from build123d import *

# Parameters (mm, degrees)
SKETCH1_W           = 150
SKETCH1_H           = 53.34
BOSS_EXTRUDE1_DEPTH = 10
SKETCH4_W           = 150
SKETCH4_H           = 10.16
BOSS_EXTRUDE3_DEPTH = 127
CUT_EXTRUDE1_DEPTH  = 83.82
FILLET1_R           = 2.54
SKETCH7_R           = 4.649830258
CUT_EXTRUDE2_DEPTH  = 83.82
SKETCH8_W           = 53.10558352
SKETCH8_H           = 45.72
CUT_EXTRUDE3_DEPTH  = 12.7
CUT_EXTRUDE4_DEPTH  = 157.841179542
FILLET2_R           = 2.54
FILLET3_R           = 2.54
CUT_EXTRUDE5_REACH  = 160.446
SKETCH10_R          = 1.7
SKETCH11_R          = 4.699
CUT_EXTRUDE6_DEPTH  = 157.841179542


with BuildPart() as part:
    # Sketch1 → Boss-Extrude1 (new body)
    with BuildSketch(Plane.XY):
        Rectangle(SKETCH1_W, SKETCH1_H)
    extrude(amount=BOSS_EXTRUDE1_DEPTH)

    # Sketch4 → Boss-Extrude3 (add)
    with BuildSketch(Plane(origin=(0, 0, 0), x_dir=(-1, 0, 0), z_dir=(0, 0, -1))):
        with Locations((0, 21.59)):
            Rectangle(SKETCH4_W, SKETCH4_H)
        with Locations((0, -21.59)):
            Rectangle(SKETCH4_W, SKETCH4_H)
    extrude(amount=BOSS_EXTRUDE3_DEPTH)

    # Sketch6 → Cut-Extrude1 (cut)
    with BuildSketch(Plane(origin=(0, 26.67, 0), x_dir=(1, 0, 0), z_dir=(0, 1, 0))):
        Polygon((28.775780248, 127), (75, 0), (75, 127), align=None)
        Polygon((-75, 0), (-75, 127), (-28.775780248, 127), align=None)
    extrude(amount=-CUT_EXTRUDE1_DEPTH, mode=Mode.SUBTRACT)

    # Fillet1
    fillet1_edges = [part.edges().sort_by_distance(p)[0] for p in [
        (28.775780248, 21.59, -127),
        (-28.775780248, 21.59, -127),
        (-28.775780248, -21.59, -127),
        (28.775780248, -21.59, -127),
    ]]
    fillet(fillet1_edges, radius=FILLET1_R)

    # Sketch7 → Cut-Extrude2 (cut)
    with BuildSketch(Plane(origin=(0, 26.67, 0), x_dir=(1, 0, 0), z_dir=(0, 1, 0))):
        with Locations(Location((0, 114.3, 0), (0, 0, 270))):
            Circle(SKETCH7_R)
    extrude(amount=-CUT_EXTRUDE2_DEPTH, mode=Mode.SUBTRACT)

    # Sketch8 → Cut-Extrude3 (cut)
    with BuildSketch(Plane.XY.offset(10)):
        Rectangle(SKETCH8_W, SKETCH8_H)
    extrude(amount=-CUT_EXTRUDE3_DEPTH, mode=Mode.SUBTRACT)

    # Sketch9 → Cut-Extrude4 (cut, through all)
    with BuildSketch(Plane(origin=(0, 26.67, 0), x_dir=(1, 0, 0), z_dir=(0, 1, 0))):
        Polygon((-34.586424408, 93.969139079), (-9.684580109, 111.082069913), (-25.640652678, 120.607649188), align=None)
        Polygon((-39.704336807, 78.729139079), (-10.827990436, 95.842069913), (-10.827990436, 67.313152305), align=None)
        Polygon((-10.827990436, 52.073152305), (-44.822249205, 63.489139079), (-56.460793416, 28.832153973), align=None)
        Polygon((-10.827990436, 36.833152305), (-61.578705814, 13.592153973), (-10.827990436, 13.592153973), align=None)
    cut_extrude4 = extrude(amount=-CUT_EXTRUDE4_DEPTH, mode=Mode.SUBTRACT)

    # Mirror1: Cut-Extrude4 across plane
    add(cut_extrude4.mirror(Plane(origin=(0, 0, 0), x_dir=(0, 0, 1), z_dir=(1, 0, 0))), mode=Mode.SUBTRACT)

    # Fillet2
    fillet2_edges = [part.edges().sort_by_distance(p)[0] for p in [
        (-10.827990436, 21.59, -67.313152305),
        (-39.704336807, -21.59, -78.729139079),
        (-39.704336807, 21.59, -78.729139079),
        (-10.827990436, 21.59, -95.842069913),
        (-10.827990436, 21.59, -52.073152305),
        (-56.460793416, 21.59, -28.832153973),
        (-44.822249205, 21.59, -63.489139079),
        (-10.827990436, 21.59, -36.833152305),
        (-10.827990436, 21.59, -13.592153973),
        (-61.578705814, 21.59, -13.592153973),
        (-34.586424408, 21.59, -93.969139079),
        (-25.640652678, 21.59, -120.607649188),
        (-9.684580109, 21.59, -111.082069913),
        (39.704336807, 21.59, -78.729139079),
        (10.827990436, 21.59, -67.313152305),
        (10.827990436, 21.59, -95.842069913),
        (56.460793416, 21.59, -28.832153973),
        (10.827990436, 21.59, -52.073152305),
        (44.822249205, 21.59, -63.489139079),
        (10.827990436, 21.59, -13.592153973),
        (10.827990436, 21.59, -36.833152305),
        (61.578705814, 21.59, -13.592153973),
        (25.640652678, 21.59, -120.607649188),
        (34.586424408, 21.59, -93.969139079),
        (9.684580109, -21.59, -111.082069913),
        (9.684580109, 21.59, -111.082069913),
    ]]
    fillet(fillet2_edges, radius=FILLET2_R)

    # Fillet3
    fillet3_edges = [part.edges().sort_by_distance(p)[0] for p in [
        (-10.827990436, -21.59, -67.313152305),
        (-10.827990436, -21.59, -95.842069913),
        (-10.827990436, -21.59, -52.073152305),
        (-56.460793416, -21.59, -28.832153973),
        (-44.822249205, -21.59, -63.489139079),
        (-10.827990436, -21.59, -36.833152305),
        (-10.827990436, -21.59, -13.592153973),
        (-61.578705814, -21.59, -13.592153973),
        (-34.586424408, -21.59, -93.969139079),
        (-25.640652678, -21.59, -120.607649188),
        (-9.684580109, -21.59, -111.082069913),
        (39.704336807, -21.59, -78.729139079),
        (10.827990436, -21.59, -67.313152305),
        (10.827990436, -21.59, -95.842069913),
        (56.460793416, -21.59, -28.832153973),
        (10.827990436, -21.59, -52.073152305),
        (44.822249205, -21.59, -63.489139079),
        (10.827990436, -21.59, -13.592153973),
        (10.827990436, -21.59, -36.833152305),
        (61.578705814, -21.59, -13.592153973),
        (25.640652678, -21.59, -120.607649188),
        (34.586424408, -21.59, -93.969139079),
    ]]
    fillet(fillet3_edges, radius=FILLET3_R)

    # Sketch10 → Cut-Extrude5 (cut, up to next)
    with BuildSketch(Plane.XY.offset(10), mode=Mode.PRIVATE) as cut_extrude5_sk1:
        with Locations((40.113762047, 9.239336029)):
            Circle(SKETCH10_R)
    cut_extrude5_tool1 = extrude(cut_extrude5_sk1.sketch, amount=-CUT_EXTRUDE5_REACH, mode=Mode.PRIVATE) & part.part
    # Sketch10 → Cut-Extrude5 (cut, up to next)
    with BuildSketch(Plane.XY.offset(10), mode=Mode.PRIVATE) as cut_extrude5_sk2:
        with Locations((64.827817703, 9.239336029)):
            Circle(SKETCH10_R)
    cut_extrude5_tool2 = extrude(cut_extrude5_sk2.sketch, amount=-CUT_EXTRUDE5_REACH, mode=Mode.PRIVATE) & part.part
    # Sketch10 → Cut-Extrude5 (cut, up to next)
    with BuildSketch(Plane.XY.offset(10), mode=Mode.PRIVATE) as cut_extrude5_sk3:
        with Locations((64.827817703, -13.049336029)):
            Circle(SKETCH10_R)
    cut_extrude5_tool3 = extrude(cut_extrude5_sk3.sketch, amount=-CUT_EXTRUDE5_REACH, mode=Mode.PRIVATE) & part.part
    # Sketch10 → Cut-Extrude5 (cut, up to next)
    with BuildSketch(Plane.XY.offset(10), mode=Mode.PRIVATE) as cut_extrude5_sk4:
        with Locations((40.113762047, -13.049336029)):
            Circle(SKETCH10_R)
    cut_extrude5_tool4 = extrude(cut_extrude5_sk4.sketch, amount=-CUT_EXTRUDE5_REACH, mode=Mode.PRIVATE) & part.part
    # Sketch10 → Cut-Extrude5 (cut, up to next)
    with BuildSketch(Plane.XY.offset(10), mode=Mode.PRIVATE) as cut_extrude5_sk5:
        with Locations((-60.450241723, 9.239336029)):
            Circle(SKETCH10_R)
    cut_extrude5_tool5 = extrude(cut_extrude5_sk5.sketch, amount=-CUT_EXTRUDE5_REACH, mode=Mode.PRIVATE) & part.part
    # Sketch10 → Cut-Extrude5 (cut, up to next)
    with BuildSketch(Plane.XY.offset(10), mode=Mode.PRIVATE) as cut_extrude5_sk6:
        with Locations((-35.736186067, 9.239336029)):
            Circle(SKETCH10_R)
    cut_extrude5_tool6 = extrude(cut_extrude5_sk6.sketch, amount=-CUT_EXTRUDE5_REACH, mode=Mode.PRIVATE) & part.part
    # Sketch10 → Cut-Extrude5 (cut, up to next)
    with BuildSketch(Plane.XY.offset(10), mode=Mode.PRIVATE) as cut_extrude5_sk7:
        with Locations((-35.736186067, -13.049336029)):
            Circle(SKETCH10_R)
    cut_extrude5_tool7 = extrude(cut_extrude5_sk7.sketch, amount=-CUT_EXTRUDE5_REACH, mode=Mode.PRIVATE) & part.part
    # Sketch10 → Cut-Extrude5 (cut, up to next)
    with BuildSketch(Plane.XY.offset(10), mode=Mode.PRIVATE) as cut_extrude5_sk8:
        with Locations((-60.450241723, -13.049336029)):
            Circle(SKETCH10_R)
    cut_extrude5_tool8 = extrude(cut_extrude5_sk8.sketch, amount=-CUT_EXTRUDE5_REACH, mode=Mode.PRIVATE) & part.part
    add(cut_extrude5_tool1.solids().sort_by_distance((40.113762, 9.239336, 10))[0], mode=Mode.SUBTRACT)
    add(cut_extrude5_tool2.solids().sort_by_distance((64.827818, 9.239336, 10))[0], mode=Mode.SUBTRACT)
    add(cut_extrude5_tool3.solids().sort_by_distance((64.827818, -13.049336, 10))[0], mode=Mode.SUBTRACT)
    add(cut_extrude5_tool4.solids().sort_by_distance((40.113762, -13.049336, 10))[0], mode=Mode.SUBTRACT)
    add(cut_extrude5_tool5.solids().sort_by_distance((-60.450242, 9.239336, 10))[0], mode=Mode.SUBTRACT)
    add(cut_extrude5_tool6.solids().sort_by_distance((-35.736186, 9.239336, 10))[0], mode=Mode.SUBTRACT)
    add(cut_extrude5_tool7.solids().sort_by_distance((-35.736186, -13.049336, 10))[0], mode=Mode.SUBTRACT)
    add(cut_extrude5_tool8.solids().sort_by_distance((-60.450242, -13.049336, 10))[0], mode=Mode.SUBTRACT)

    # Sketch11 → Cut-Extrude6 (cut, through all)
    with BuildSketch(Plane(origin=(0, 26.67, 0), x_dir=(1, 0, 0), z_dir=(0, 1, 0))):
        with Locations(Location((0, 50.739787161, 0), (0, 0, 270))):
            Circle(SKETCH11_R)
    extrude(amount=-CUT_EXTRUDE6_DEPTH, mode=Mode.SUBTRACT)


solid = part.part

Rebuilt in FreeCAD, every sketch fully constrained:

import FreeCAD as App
import Part
import Sketcher
Q = App.Units.Quantity


def edges_at(feature, points):
    """Names of the edges that pass closest to the given points."""
    edges = feature.Shape.Edges
    near = lambda p: min(range(len(edges)), key=lambda i: edges[i].distToShape(Part.Vertex(*p))[0])
    return sorted({f"Edge{near(p) + 1}" for p in points})

doc = App.newDocument("Part")
body = doc.addObject("PartDesign::Body", "Body")

sketch1 = doc.addObject("Sketcher::SketchObject", "Sketch")
body.addObject(sketch1)
sketch1.AttachmentSupport = (doc.XY_Plane, [""])
sketch1.MapMode = "FlatFace"
sketch1.addGeometry(Part.LineSegment(App.Vector(-75, 26.67, 0), App.Vector(-75, -26.67, 0)), False)
sketch1.addGeometry(Part.LineSegment(App.Vector(-75, -26.67, 0), App.Vector(75, -26.67, 0)), False)
sketch1.addGeometry(Part.LineSegment(App.Vector(75, -26.67, 0), App.Vector(75, 26.67, 0)), False)
sketch1.addGeometry(Part.LineSegment(App.Vector(75, 26.67, 0), App.Vector(-75, 26.67, 0)), False)
sketch1.addConstraint(Sketcher.Constraint("Coincident", 0, 2, 1, 1))
sketch1.addConstraint(Sketcher.Constraint("Coincident", 1, 2, 2, 1))
sketch1.addConstraint(Sketcher.Constraint("Coincident", 2, 2, 3, 1))
sketch1.addConstraint(Sketcher.Constraint("Coincident", 3, 2, 0, 1))
sketch1.addConstraint(Sketcher.Constraint("Vertical", 0))
sketch1.addConstraint(Sketcher.Constraint("Horizontal", 1))
sketch1.addConstraint(Sketcher.Constraint("Vertical", 2))
sketch1.addConstraint(Sketcher.Constraint("Horizontal", 3))
sketch1.addConstraint(Sketcher.Constraint("Symmetric", 0, 2, 2, 2, -1, 1))
sketch1.addConstraint(Sketcher.Constraint("DistanceY", 0, 2, 0, 1, Q("2.1 in")))
sketch1.addConstraint(Sketcher.Constraint("DistanceX", 1, 1, 1, 2, Q("150 mm")))
pad1 = doc.addObject("PartDesign::Pad", "Pad")
body.addObject(pad1)
pad1.Profile = sketch1
pad1.Length = 10

sketch2 = doc.addObject("Sketcher::SketchObject", "Sketch001")
body.addObject(sketch2)
sketch2.AttachmentSupport = (doc.XY_Plane, [""])
sketch2.MapMode = "FlatFace"
sketch2.addGeometry(Part.LineSegment(App.Vector(75, 26.67, 0), App.Vector(75, 16.51, 0)), False)
sketch2.addGeometry(Part.LineSegment(App.Vector(75, 16.51, 0), App.Vector(-75, 16.51, 0)), False)
sketch2.addGeometry(Part.LineSegment(App.Vector(-75, 16.51, 0), App.Vector(-75, 26.67, 0)), False)
sketch2.addGeometry(Part.LineSegment(App.Vector(-75, 26.67, 0), App.Vector(75, 26.67, 0)), False)
sketch2.addGeometry(Part.LineSegment(App.Vector(75, -16.51, 0), App.Vector(75, -26.67, 0)), False)
sketch2.addGeometry(Part.LineSegment(App.Vector(75, -26.67, 0), App.Vector(-75, -26.67, 0)), False)
sketch2.addGeometry(Part.LineSegment(App.Vector(-75, -26.67, 0), App.Vector(-75, -16.51, 0)), False)
sketch2.addGeometry(Part.LineSegment(App.Vector(-75, -16.51, 0), App.Vector(75, -16.51, 0)), False)
sketch2.addConstraint(Sketcher.Constraint("Coincident", 0, 2, 1, 1))
sketch2.addConstraint(Sketcher.Constraint("Coincident", 1, 2, 2, 1))
sketch2.addConstraint(Sketcher.Constraint("Coincident", 2, 2, 3, 1))
sketch2.addConstraint(Sketcher.Constraint("Coincident", 3, 2, 0, 1))
sketch2.addConstraint(Sketcher.Constraint("Coincident", 4, 2, 5, 1))
sketch2.addConstraint(Sketcher.Constraint("Coincident", 5, 2, 6, 1))
sketch2.addConstraint(Sketcher.Constraint("Coincident", 6, 2, 7, 1))
sketch2.addConstraint(Sketcher.Constraint("Coincident", 7, 2, 4, 1))
sketch2.addConstraint(Sketcher.Constraint("Vertical", 0))
sketch2.addConstraint(Sketcher.Constraint("Horizontal", 1))
sketch2.addConstraint(Sketcher.Constraint("Vertical", 2))
sketch2.addConstraint(Sketcher.Constraint("Horizontal", 3))
sketch2.addConstraint(Sketcher.Constraint("Vertical", 4))
sketch2.addConstraint(Sketcher.Constraint("Horizontal", 5))
sketch2.addConstraint(Sketcher.Constraint("Vertical", 6))
sketch2.addConstraint(Sketcher.Constraint("Horizontal", 7))
sketch2.addConstraint(Sketcher.Constraint("Symmetric", 2, 2, 4, 2, -1, 1))
sketch2.addConstraint(Sketcher.Constraint("Symmetric", 0, 2, 6, 2, -1, 1))
sketch2.addConstraint(Sketcher.Constraint("Vertical", 3, 2, 4, 2))
sketch2.addConstraint(Sketcher.Constraint("DistanceY", 0, 2, 0, 1, Q("0.4 in")))
sketch2.addConstraint(Sketcher.Constraint("DistanceY", 4, 2, 0, 2, Q("1.7 in")))
sketch2.addConstraint(Sketcher.Constraint("DistanceX", 1, 2, 1, 1, Q("150 mm")))
pad2 = doc.addObject("PartDesign::Pad", "Pad001")
body.addObject(pad2)
pad2.Profile = sketch2
pad2.Length = Q("5 in")
pad2.Reversed = True

sketch3 = doc.addObject("Sketcher::SketchObject", "Sketch002")
body.addObject(sketch3)
sketch3.AttachmentSupport = (doc.XZ_Plane, [""])
sketch3.MapMode = "FlatFace"
sketch3.AttachmentOffset = App.Placement(App.Vector(0, 0, -1.05 * 25.4), App.Rotation())
sketch3.addGeometry(Part.LineSegment(App.Vector(28.77578, -127, 0), App.Vector(75, 0, 0)), False)
sketch3.addGeometry(Part.LineSegment(App.Vector(75, 0, 0), App.Vector(75, -127, 0)), False)
sketch3.addGeometry(Part.LineSegment(App.Vector(75, -127, 0), App.Vector(28.77578, -127, 0)), False)
sketch3.addGeometry(Part.LineSegment(App.Vector(-75, -127, 0), App.Vector(-75, 0, 0)), False)
sketch3.addGeometry(Part.LineSegment(App.Vector(-75, 0, 0), App.Vector(-28.77578, -127, 0)), False)
sketch3.addGeometry(Part.LineSegment(App.Vector(-28.77578, -127, 0), App.Vector(-75, -127, 0)), False)
sketch3.addConstraint(Sketcher.Constraint("Coincident", 0, 2, 1, 1))
sketch3.addConstraint(Sketcher.Constraint("Coincident", 1, 2, 2, 1))
sketch3.addConstraint(Sketcher.Constraint("Coincident", 2, 2, 0, 1))
sketch3.addConstraint(Sketcher.Constraint("Coincident", 3, 2, 4, 1))
sketch3.addConstraint(Sketcher.Constraint("Coincident", 4, 2, 5, 1))
sketch3.addConstraint(Sketcher.Constraint("Coincident", 5, 2, 3, 1))
sketch3.addConstraint(Sketcher.Constraint("Vertical", 1))
sketch3.addConstraint(Sketcher.Constraint("Horizontal", 2))
sketch3.addConstraint(Sketcher.Constraint("Vertical", 3))
sketch3.addConstraint(Sketcher.Constraint("Horizontal", 5))
sketch3.addConstraint(Sketcher.Constraint("Symmetric", 0, 2, 3, 2, -1, 1))
sketch3.addConstraint(Sketcher.Constraint("Symmetric", 2, 2, 4, 2, -2))
sketch3.addConstraint(Sketcher.Constraint("PointOnObject", 0, 2, -1))
sketch3.addConstraint(Sketcher.Constraint("DistanceY", 1, 2, 1, 1, Q("5 in")))
sketch3.addConstraint(Sketcher.Constraint("Angle", 0, Q("70 deg")))
sketch3.addConstraint(Sketcher.Constraint("DistanceX", -1, 1, 0, 2, Q("75 mm")))
pocket1 = doc.addObject("PartDesign::Pocket", "Pocket")
body.addObject(pocket1)
pocket1.Profile = sketch3
pocket1.Length = Q("3.3 in")
pocket1.Reversed = True
doc.recompute()

fillet = doc.addObject("PartDesign::Fillet", "Fillet")
body.addObject(fillet)
fillet.Base = (pocket1, edges_at(pocket1, [
    (28.776, 21.59, -127),
    (-28.776, 21.59, -127),
    (-28.776, -21.59, -127),
    (28.776, -21.59, -127),
]))
fillet.Radius = Q("0.1 in")

sketch4 = doc.addObject("Sketcher::SketchObject", "Sketch003")
body.addObject(sketch4)
sketch4.AttachmentSupport = (doc.XZ_Plane, [""])
sketch4.MapMode = "FlatFace"
sketch4.AttachmentOffset = App.Placement(App.Vector(0, 0, -1.05 * 25.4), App.Rotation())
sketch4.addGeometry(Part.Circle(App.Vector(0, -114.3, 0), App.Vector(0, 0, 1), 4.64983), False)
sketch4.addConstraint(Sketcher.Constraint("PointOnObject", 0, 3, -2))
sketch4.addConstraint(Sketcher.Constraint("DistanceY", 0, 3, -1, 1, Q("4.5 in")))
sketch4.addConstraint(Sketcher.Constraint("Diameter", 0, Q("9.299661 mm")))
pocket2 = doc.addObject("PartDesign::Pocket", "Pocket001")
body.addObject(pocket2)
pocket2.Profile = sketch4
pocket2.Length = Q("3.3 in")
pocket2.Reversed = True

sketch5 = doc.addObject("Sketcher::SketchObject", "Sketch004")
body.addObject(sketch5)
sketch5.AttachmentSupport = (doc.XY_Plane, [""])
sketch5.MapMode = "FlatFace"
sketch5.AttachmentOffset = App.Placement(App.Vector(0, 0, 10), App.Rotation())
sketch5.addGeometry(Part.LineSegment(App.Vector(-26.552792, 22.86, 0), App.Vector(-26.552792, -22.86, 0)), False)
sketch5.addGeometry(Part.LineSegment(App.Vector(-26.552792, -22.86, 0), App.Vector(26.552792, -22.86, 0)), False)
sketch5.addGeometry(Part.LineSegment(App.Vector(26.552792, -22.86, 0), App.Vector(26.552792, 22.86, 0)), False)
sketch5.addGeometry(Part.LineSegment(App.Vector(26.552792, 22.86, 0), App.Vector(-26.552792, 22.86, 0)), False)
sketch5.addConstraint(Sketcher.Constraint("Coincident", 0, 2, 1, 1))
sketch5.addConstraint(Sketcher.Constraint("Coincident", 1, 2, 2, 1))
sketch5.addConstraint(Sketcher.Constraint("Coincident", 2, 2, 3, 1))
sketch5.addConstraint(Sketcher.Constraint("Coincident", 3, 2, 0, 1))
sketch5.addConstraint(Sketcher.Constraint("Vertical", 0))
sketch5.addConstraint(Sketcher.Constraint("Horizontal", 1))
sketch5.addConstraint(Sketcher.Constraint("Vertical", 2))
sketch5.addConstraint(Sketcher.Constraint("Horizontal", 3))
sketch5.addConstraint(Sketcher.Constraint("Symmetric", 0, 2, 2, 2, -1, 1))
sketch5.addConstraint(Sketcher.Constraint("DistanceY", 0, 2, 0, 1, Q("1.8 in")))
sketch5.addConstraint(Sketcher.Constraint("DistanceX", 1, 1, 1, 2, Q("53.105584 mm")))
pocket3 = doc.addObject("PartDesign::Pocket", "Pocket002")
body.addObject(pocket3)
pocket3.Profile = sketch5
pocket3.Length = Q("0.5 in")

sketch6 = doc.addObject("Sketcher::SketchObject", "Sketch005")
body.addObject(sketch6)
sketch6.AttachmentSupport = (doc.XZ_Plane, [""])
sketch6.MapMode = "FlatFace"
sketch6.AttachmentOffset = App.Placement(App.Vector(0, 0, -1.05 * 25.4), App.Rotation())
sketch6.addGeometry(Part.LineSegment(App.Vector(-34.586424, -93.969139, 0), App.Vector(-9.68458, -111.08207, 0)), False)
sketch6.addGeometry(Part.LineSegment(App.Vector(-9.68458, -111.08207, 0), App.Vector(-25.640653, -120.607649, 0)), False)
sketch6.addGeometry(Part.LineSegment(App.Vector(-25.640653, -120.607649, 0), App.Vector(-34.586424, -93.969139, 0)), False)
sketch6.addGeometry(Part.LineSegment(App.Vector(-10.82799, -95.84207, 0), App.Vector(-39.704337, -78.729139, 0)), False)
sketch6.addGeometry(Part.LineSegment(App.Vector(-39.704337, -78.729139, 0), App.Vector(-10.82799, -67.313152, 0)), False)
sketch6.addGeometry(Part.LineSegment(App.Vector(-10.82799, -67.313152, 0), App.Vector(-10.82799, -95.84207, 0)), False)
sketch6.addGeometry(Part.LineSegment(App.Vector(-10.82799, -52.073152, 0), App.Vector(-44.822249, -63.489139, 0)), False)
sketch6.addGeometry(Part.LineSegment(App.Vector(-44.822249, -63.489139, 0), App.Vector(-56.460793, -28.832154, 0)), False)
sketch6.addGeometry(Part.LineSegment(App.Vector(-56.460793, -28.832154, 0), App.Vector(-10.82799, -52.073152, 0)), False)
sketch6.addGeometry(Part.LineSegment(App.Vector(-10.82799, -36.833152, 0), App.Vector(-61.578706, -13.592154, 0)), False)
sketch6.addGeometry(Part.LineSegment(App.Vector(-61.578706, -13.592154, 0), App.Vector(-10.82799, -13.592154, 0)), False)
sketch6.addGeometry(Part.LineSegment(App.Vector(-10.82799, -13.592154, 0), App.Vector(-10.82799, -36.833152, 0)), False)
sketch6.addConstraint(Sketcher.Constraint("Coincident", 0, 2, 1, 1))
sketch6.addConstraint(Sketcher.Constraint("Coincident", 1, 2, 2, 1))
sketch6.addConstraint(Sketcher.Constraint("Coincident", 2, 2, 0, 1))
sketch6.addConstraint(Sketcher.Constraint("Coincident", 3, 2, 4, 1))
sketch6.addConstraint(Sketcher.Constraint("Coincident", 4, 2, 5, 1))
sketch6.addConstraint(Sketcher.Constraint("Coincident", 5, 2, 3, 1))
sketch6.addConstraint(Sketcher.Constraint("Coincident", 6, 2, 7, 1))
sketch6.addConstraint(Sketcher.Constraint("Coincident", 7, 2, 8, 1))
sketch6.addConstraint(Sketcher.Constraint("Coincident", 8, 2, 6, 1))
sketch6.addConstraint(Sketcher.Constraint("Coincident", 9, 2, 10, 1))
sketch6.addConstraint(Sketcher.Constraint("Coincident", 10, 2, 11, 1))
sketch6.addConstraint(Sketcher.Constraint("Coincident", 11, 2, 9, 1))
sketch6.addConstraint(Sketcher.Constraint("Vertical", 5))
sketch6.addConstraint(Sketcher.Constraint("Horizontal", 10))
sketch6.addConstraint(Sketcher.Constraint("Vertical", 11))
sketch6.addConstraint(Sketcher.Constraint("Perpendicular", 2, 6))
sketch6.addConstraint(Sketcher.Constraint("Perpendicular", 6, 7))
sketch6.addConstraint(Sketcher.Constraint("Vertical", 5, 2, 8, 2))
sketch6.addConstraint(Sketcher.Constraint("Vertical", 8, 2, 10, 2))
sketch6.addConstraint(Sketcher.Constraint("DistanceY", 2, 2, 3, 2, Q("0.6 in")))
sketch6.addConstraint(Sketcher.Constraint("DistanceY", 0, 2, 5, 2, Q("0.6 in")))
sketch6.addConstraint(Sketcher.Constraint("DistanceY", 3, 2, 6, 2, Q("0.6 in")))
sketch6.addConstraint(Sketcher.Constraint("DistanceY", 4, 2, 8, 2, Q("0.6 in")))
sketch6.addConstraint(Sketcher.Constraint("DistanceY", 7, 2, 9, 2, Q("0.6 in")))
sketch6.addConstraint(Sketcher.Constraint("DistanceY", 8, 2, 11, 2, Q("0.6 in")))
sketch6.addConstraint(Sketcher.Constraint("DistanceY", 11, 2, 11, 1, Q("0.9149999 in")))
sketch6.addConstraint(Sketcher.Constraint("Distance", 2, Q("28.100481 mm")))
sketch6.addConstraint(Sketcher.Constraint("Distance", 3, Q("33.566289 mm")))
sketch6.addConstraint(Sketcher.Constraint("Distance", 8, Q("51.210318 mm")))
sketch6.addConstraint(Sketcher.Constraint("DistanceX", 10, 1, 10, 2, Q("50.750715 mm")))
sketch6.addConstraint(Sketcher.Constraint("DistanceY", 5, 2, 5, 1, Q("28.528918 mm")))
sketch6.addConstraint(Sketcher.Constraint("DistanceX", 0, 2, -1, 1, Q("9.68458 mm")))
sketch6.addConstraint(Sketcher.Constraint("DistanceY", 0, 2, -1, 1, Q("111.08207 mm")))
sketch6.addConstraint(Sketcher.Constraint("DistanceY", 1, 2, -1, 1, Q("120.607649 mm")))
sketch6.addConstraint(Sketcher.Constraint("DistanceX", 4, 2, -1, 1, Q("10.82799 mm")))
sketch6.addConstraint(Sketcher.Constraint("DistanceX", 7, 2, 2, 2, Q("21.874369 mm")))
pocket4 = doc.addObject("PartDesign::Pocket", "Pocket003")
body.addObject(pocket4)
pocket4.Profile = sketch6
pocket4.Type = "ThroughAll"
pocket4.Reversed = True
doc.recompute()

mirrored = doc.addObject("PartDesign::Mirrored", "Mirrored")
body.addObject(mirrored)
mirrored.Originals = [pocket4]
mirrored.MirrorPlane = (doc.YZ_Plane, [""])
body.Tip = mirrored
doc.recompute()

fillet2 = doc.addObject("PartDesign::Fillet", "Fillet001")
body.addObject(fillet2)
fillet2.Base = (mirrored, edges_at(mirrored, [
    (-10.828, 21.59, -67.313),
    (-39.704, -21.59, -78.729),
    (-39.704, 21.59, -78.729),
    (-10.828, 21.59, -95.842),
    (-10.828, 21.59, -52.073),
    (-56.461, 21.59, -28.832),
    (-44.822, 21.59, -63.489),
    (-10.828, 21.59, -36.833),
    (-10.828, 21.59, -13.592),
    (-61.579, 21.59, -13.592),
    (-34.586, 21.59, -93.969),
    (-25.641, 21.59, -120.608),
    (-9.685, 21.59, -111.082),
    (39.704, 21.59, -78.729),
    (10.828, 21.59, -67.313),
    (10.828, 21.59, -95.842),
    (56.461, 21.59, -28.832),
    (10.828, 21.59, -52.073),
    (44.822, 21.59, -63.489),
    (10.828, 21.59, -13.592),
    (10.828, 21.59, -36.833),
    (61.579, 21.59, -13.592),
    (25.641, 21.59, -120.608),
    (34.586, 21.59, -93.969),
    (9.685, -21.59, -111.082),
    (9.685, 21.59, -111.082),
]))
fillet2.Radius = Q("0.1 in")
doc.recompute()

fillet3 = doc.addObject("PartDesign::Fillet", "Fillet002")
body.addObject(fillet3)
fillet3.Base = (fillet2, edges_at(fillet2, [
    (-10.828, -21.59, -67.313),
    (-10.828, -21.59, -95.842),
    (-10.828, -21.59, -52.073),
    (-56.461, -21.59, -28.832),
    (-44.822, -21.59, -63.489),
    (-10.828, -21.59, -36.833),
    (-10.828, -21.59, -13.592),
    (-61.579, -21.59, -13.592),
    (-34.586, -21.59, -93.969),
    (-25.641, -21.59, -120.608),
    (-9.685, -21.59, -111.082),
    (39.704, -21.59, -78.729),
    (10.828, -21.59, -67.313),
    (10.828, -21.59, -95.842),
    (56.461, -21.59, -28.832),
    (10.828, -21.59, -52.073),
    (44.822, -21.59, -63.489),
    (10.828, -21.59, -13.592),
    (10.828, -21.59, -36.833),
    (61.579, -21.59, -13.592),
    (25.641, -21.59, -120.608),
    (34.586, -21.59, -93.969),
]))
fillet3.Radius = Q("0.1 in")

sketch7 = doc.addObject("Sketcher::SketchObject", "Sketch006")
body.addObject(sketch7)
sketch7.AttachmentSupport = (doc.XY_Plane, [""])
sketch7.MapMode = "FlatFace"
sketch7.AttachmentOffset = App.Placement(App.Vector(0, 0, 10), App.Rotation())
sketch7.addGeometry(Part.Circle(App.Vector(40.113762, 9.239336, 0), App.Vector(0, 0, 1), 1.7), False)
sketch7.addConstraint(Sketcher.Constraint("Diameter", 0, Q("3.4 mm")))
sketch7.addConstraint(Sketcher.Constraint("DistanceX", -1, 1, 0, 3, Q("40.113762 mm")))
sketch7.addConstraint(Sketcher.Constraint("DistanceY", -1, 1, 0, 3, Q("9.239336 mm")))
pocket5 = doc.addObject("PartDesign::Pocket", "Pocket004")
body.addObject(pocket5)
pocket5.Profile = sketch7
pocket5.Type = "UpToFirst"

sketch8 = doc.addObject("Sketcher::SketchObject", "Sketch007")
body.addObject(sketch8)
sketch8.AttachmentSupport = (doc.XY_Plane, [""])
sketch8.MapMode = "FlatFace"
sketch8.AttachmentOffset = App.Placement(App.Vector(0, 0, 10), App.Rotation())
sketch8.addGeometry(Part.Circle(App.Vector(64.827818, 9.239336, 0), App.Vector(0, 0, 1), 1.7), False)
sketch8.addConstraint(Sketcher.Constraint("Diameter", 0, Q("3.4 mm")))
sketch8.addConstraint(Sketcher.Constraint("DistanceX", -1, 1, 0, 3, Q("64.827818 mm")))
sketch8.addConstraint(Sketcher.Constraint("DistanceY", -1, 1, 0, 3, Q("9.239336 mm")))
pocket6 = doc.addObject("PartDesign::Pocket", "Pocket005")
body.addObject(pocket6)
pocket6.Profile = sketch8
pocket6.Type = "UpToFirst"

sketch9 = doc.addObject("Sketcher::SketchObject", "Sketch008")
body.addObject(sketch9)
sketch9.AttachmentSupport = (doc.XY_Plane, [""])
sketch9.MapMode = "FlatFace"
sketch9.AttachmentOffset = App.Placement(App.Vector(0, 0, 10), App.Rotation())
sketch9.addGeometry(Part.Circle(App.Vector(64.827818, -13.049336, 0), App.Vector(0, 0, 1), 1.7), False)
sketch9.addConstraint(Sketcher.Constraint("Diameter", 0, Q("3.4 mm")))
sketch9.addConstraint(Sketcher.Constraint("DistanceX", -1, 1, 0, 3, Q("64.827818 mm")))
sketch9.addConstraint(Sketcher.Constraint("DistanceY", 0, 3, -1, 1, Q("13.049336 mm")))
pocket7 = doc.addObject("PartDesign::Pocket", "Pocket006")
body.addObject(pocket7)
pocket7.Profile = sketch9
pocket7.Type = "UpToFirst"

sketch10 = doc.addObject("Sketcher::SketchObject", "Sketch009")
body.addObject(sketch10)
sketch10.AttachmentSupport = (doc.XY_Plane, [""])
sketch10.MapMode = "FlatFace"
sketch10.AttachmentOffset = App.Placement(App.Vector(0, 0, 10), App.Rotation())
sketch10.addGeometry(Part.Circle(App.Vector(40.113762, -13.049336, 0), App.Vector(0, 0, 1), 1.7), False)
sketch10.addConstraint(Sketcher.Constraint("Diameter", 0, Q("3.4 mm")))
sketch10.addConstraint(Sketcher.Constraint("DistanceX", -1, 1, 0, 3, Q("40.113762 mm")))
sketch10.addConstraint(Sketcher.Constraint("DistanceY", 0, 3, -1, 1, Q("13.049336 mm")))
pocket8 = doc.addObject("PartDesign::Pocket", "Pocket007")
body.addObject(pocket8)
pocket8.Profile = sketch10
pocket8.Type = "UpToFirst"

sketch11 = doc.addObject("Sketcher::SketchObject", "Sketch010")
body.addObject(sketch11)
sketch11.AttachmentSupport = (doc.XY_Plane, [""])
sketch11.MapMode = "FlatFace"
sketch11.AttachmentOffset = App.Placement(App.Vector(0, 0, 10), App.Rotation())
sketch11.addGeometry(Part.Circle(App.Vector(-60.450242, 9.239336, 0), App.Vector(0, 0, 1), 1.7), False)
sketch11.addConstraint(Sketcher.Constraint("Diameter", 0, Q("3.4 mm")))
sketch11.addConstraint(Sketcher.Constraint("DistanceX", 0, 3, -1, 1, Q("60.450242 mm")))
sketch11.addConstraint(Sketcher.Constraint("DistanceY", -1, 1, 0, 3, Q("9.239336 mm")))
pocket9 = doc.addObject("PartDesign::Pocket", "Pocket008")
body.addObject(pocket9)
pocket9.Profile = sketch11
pocket9.Type = "UpToFirst"

sketch12 = doc.addObject("Sketcher::SketchObject", "Sketch011")
body.addObject(sketch12)
sketch12.AttachmentSupport = (doc.XY_Plane, [""])
sketch12.MapMode = "FlatFace"
sketch12.AttachmentOffset = App.Placement(App.Vector(0, 0, 10), App.Rotation())
sketch12.addGeometry(Part.Circle(App.Vector(-35.736186, 9.239336, 0), App.Vector(0, 0, 1), 1.7), False)
sketch12.addConstraint(Sketcher.Constraint("Diameter", 0, Q("3.4 mm")))
sketch12.addConstraint(Sketcher.Constraint("DistanceX", 0, 3, -1, 1, Q("35.736186 mm")))
sketch12.addConstraint(Sketcher.Constraint("DistanceY", -1, 1, 0, 3, Q("9.239336 mm")))
pocket10 = doc.addObject("PartDesign::Pocket", "Pocket009")
body.addObject(pocket10)
pocket10.Profile = sketch12
pocket10.Type = "UpToFirst"

sketch13 = doc.addObject("Sketcher::SketchObject", "Sketch012")
body.addObject(sketch13)
sketch13.AttachmentSupport = (doc.XY_Plane, [""])
sketch13.MapMode = "FlatFace"
sketch13.AttachmentOffset = App.Placement(App.Vector(0, 0, 10), App.Rotation())
sketch13.addGeometry(Part.Circle(App.Vector(-35.736186, -13.049336, 0), App.Vector(0, 0, 1), 1.7), False)
sketch13.addConstraint(Sketcher.Constraint("Diameter", 0, Q("3.4 mm")))
sketch13.addConstraint(Sketcher.Constraint("DistanceX", 0, 3, -1, 1, Q("35.736186 mm")))
sketch13.addConstraint(Sketcher.Constraint("DistanceY", 0, 3, -1, 1, Q("13.049336 mm")))
pocket11 = doc.addObject("PartDesign::Pocket", "Pocket010")
body.addObject(pocket11)
pocket11.Profile = sketch13
pocket11.Type = "UpToFirst"

sketch14 = doc.addObject("Sketcher::SketchObject", "Sketch013")
body.addObject(sketch14)
sketch14.AttachmentSupport = (doc.XY_Plane, [""])
sketch14.MapMode = "FlatFace"
sketch14.AttachmentOffset = App.Placement(App.Vector(0, 0, 10), App.Rotation())
sketch14.addGeometry(Part.Circle(App.Vector(-60.450242, -13.049336, 0), App.Vector(0, 0, 1), 1.7), False)
sketch14.addConstraint(Sketcher.Constraint("Diameter", 0, Q("3.4 mm")))
sketch14.addConstraint(Sketcher.Constraint("DistanceX", 0, 3, -1, 1, Q("60.450242 mm")))
sketch14.addConstraint(Sketcher.Constraint("DistanceY", 0, 3, -1, 1, Q("13.049336 mm")))
pocket12 = doc.addObject("PartDesign::Pocket", "Pocket011")
body.addObject(pocket12)
pocket12.Profile = sketch14
pocket12.Type = "UpToFirst"

sketch15 = doc.addObject("Sketcher::SketchObject", "Sketch014")
body.addObject(sketch15)
sketch15.AttachmentSupport = (doc.XZ_Plane, [""])
sketch15.MapMode = "FlatFace"
sketch15.AttachmentOffset = App.Placement(App.Vector(0, 0, -1.05 * 25.4), App.Rotation())
sketch15.addGeometry(Part.Circle(App.Vector(0, -50.739787, 0), App.Vector(0, 0, 1), 4.699), False)
sketch15.addConstraint(Sketcher.Constraint("PointOnObject", 0, 3, -2))
sketch15.addConstraint(Sketcher.Constraint("Diameter", 0, Q("0.37 in")))
sketch15.addConstraint(Sketcher.Constraint("DistanceY", 0, 3, -1, 1, Q("50.739787 mm")))
pocket13 = doc.addObject("PartDesign::Pocket", "Pocket012")
body.addObject(pocket13)
pocket13.Profile = sketch15
pocket13.Type = "ThroughAll"
pocket13.Reversed = True

doc.recompute()
